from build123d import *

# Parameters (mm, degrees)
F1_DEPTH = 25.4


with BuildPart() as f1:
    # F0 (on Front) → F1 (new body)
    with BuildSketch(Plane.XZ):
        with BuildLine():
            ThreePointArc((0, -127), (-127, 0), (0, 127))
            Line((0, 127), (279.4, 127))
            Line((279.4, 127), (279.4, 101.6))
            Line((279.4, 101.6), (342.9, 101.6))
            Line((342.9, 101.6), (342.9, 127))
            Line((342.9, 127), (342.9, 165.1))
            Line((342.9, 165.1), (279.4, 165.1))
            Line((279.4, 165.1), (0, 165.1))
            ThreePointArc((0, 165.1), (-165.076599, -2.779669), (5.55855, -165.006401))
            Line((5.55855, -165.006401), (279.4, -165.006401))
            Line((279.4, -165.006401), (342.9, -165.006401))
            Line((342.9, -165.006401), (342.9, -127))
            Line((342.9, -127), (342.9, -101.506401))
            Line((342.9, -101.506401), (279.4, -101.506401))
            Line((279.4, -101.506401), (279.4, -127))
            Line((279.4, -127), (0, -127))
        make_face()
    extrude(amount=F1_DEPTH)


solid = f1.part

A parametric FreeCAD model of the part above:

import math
import FreeCAD as App
import Part
import Sketcher

V = App.Vector
Q = App.Units.Quantity

doc = App.newDocument("Part")
body = doc.addObject("PartDesign::Body", "Body")

sketch1 = body.newObject("Sketcher::SketchObject", "Sketch")
sketch1.AttachmentSupport = (doc.getObject("XZ_Plane"), [""])
sketch1.MapMode = "FlatFace"
sketch1.addGeometry([
    Part.ArcOfCircle(Part.Circle(V(0, 0, 0), V(0, 0, 1), 127), math.radians(90), math.radians(270)),
    Part.LineSegment(V(0, 127, 0), V(279, 127, 0)),
    Part.LineSegment(V(279, 127, 0), V(279, 102, 0)),
    Part.LineSegment(V(279, 102, 0), V(343, 102, 0)),
    Part.LineSegment(V(343, 102, 0), V(343, 165, 0)),
    Part.LineSegment(V(343, 165, 0), V(0, 165, 0)),
    Part.ArcOfCircle(Part.Circle(V(0, 0, 0), V(0, 0, 1), 165), math.radians(90), math.radians(272)),
    Part.LineSegment(V(6, -165, 0), V(343, -165, 0)),
    Part.LineSegment(V(343, -165, 0), V(343, -102, 0)),
    Part.LineSegment(V(343, -102, 0), V(279, -102, 0)),
    Part.LineSegment(V(279, -102, 0), V(279, -127, 0)),
    Part.LineSegment(V(279, -127, 0), V(0, -127, 0)),
], False)
sketch1.addConstraint([
    Sketcher.Constraint("Tangent", 0, 1, 1, 1),
    Sketcher.Constraint("Coincident", 1, 2, 2, 1),
    Sketcher.Constraint("Coincident", 2, 2, 3, 1),
    Sketcher.Constraint("Coincident", 3, 2, 4, 1),
    Sketcher.Constraint("Coincident", 4, 2, 5, 1),
    Sketcher.Constraint("Tangent", 5, 2, 6, 1),
    Sketcher.Constraint("Coincident", 6, 2, 7, 1),
    Sketcher.Constraint("Coincident", 7, 2, 8, 1),
    Sketcher.Constraint("Coincident", 8, 2, 9, 1),
    Sketcher.Constraint("Coincident", 9, 2, 10, 1),
    Sketcher.Constraint("Coincident", 10, 2, 11, 1),
    Sketcher.Constraint("Tangent", 11, 2, 0, 2),
    Sketcher.Constraint("Horizontal", 1),
    Sketcher.Constraint("Vertical", 2),
    Sketcher.Constraint("Horizontal", 3),
    Sketcher.Constraint("Vertical", 4),
    Sketcher.Constraint("Horizontal", 5),
    Sketcher.Constraint("Horizontal", 7),
    Sketcher.Constraint("Vertical", 8),
    Sketcher.Constraint("Horizontal", 9),
    Sketcher.Constraint("Vertical", 10),
    Sketcher.Constraint("Horizontal", 11),
    Sketcher.Constraint("Coincident", 0, 3, -1, 1),
    Sketcher.Constraint("Coincident", 6, 3, -1, 1),
    Sketcher.Constraint("Vertical", 4, 2, 7, 2),
    Sketcher.Constraint("Vertical", 2, 2, 9, 2),
    Sketcher.Constraint("Equal", 9, 4),
    Sketcher.Constraint("Equal", 4, 8),
    Sketcher.Constraint("Radius", 0, Q("5 in")),
    Sketcher.Constraint("Radius", 6, Q("6.5 in")),
    Sketcher.Constraint("DistanceX", 1, 1, 1, 2, Q("11 in")),
    Sketcher.Constraint("DistanceY", 2, 2, 2, 1, Q("1 in")),
    Sketcher.Constraint("DistanceY", 10, 2, 10, 1, 25.493599),
])
pad1 = body.newObject("PartDesign::Pad", "Pad")
pad1.Profile = sketch1
pad1.Length = Q("1 in")

doc.recompute()
